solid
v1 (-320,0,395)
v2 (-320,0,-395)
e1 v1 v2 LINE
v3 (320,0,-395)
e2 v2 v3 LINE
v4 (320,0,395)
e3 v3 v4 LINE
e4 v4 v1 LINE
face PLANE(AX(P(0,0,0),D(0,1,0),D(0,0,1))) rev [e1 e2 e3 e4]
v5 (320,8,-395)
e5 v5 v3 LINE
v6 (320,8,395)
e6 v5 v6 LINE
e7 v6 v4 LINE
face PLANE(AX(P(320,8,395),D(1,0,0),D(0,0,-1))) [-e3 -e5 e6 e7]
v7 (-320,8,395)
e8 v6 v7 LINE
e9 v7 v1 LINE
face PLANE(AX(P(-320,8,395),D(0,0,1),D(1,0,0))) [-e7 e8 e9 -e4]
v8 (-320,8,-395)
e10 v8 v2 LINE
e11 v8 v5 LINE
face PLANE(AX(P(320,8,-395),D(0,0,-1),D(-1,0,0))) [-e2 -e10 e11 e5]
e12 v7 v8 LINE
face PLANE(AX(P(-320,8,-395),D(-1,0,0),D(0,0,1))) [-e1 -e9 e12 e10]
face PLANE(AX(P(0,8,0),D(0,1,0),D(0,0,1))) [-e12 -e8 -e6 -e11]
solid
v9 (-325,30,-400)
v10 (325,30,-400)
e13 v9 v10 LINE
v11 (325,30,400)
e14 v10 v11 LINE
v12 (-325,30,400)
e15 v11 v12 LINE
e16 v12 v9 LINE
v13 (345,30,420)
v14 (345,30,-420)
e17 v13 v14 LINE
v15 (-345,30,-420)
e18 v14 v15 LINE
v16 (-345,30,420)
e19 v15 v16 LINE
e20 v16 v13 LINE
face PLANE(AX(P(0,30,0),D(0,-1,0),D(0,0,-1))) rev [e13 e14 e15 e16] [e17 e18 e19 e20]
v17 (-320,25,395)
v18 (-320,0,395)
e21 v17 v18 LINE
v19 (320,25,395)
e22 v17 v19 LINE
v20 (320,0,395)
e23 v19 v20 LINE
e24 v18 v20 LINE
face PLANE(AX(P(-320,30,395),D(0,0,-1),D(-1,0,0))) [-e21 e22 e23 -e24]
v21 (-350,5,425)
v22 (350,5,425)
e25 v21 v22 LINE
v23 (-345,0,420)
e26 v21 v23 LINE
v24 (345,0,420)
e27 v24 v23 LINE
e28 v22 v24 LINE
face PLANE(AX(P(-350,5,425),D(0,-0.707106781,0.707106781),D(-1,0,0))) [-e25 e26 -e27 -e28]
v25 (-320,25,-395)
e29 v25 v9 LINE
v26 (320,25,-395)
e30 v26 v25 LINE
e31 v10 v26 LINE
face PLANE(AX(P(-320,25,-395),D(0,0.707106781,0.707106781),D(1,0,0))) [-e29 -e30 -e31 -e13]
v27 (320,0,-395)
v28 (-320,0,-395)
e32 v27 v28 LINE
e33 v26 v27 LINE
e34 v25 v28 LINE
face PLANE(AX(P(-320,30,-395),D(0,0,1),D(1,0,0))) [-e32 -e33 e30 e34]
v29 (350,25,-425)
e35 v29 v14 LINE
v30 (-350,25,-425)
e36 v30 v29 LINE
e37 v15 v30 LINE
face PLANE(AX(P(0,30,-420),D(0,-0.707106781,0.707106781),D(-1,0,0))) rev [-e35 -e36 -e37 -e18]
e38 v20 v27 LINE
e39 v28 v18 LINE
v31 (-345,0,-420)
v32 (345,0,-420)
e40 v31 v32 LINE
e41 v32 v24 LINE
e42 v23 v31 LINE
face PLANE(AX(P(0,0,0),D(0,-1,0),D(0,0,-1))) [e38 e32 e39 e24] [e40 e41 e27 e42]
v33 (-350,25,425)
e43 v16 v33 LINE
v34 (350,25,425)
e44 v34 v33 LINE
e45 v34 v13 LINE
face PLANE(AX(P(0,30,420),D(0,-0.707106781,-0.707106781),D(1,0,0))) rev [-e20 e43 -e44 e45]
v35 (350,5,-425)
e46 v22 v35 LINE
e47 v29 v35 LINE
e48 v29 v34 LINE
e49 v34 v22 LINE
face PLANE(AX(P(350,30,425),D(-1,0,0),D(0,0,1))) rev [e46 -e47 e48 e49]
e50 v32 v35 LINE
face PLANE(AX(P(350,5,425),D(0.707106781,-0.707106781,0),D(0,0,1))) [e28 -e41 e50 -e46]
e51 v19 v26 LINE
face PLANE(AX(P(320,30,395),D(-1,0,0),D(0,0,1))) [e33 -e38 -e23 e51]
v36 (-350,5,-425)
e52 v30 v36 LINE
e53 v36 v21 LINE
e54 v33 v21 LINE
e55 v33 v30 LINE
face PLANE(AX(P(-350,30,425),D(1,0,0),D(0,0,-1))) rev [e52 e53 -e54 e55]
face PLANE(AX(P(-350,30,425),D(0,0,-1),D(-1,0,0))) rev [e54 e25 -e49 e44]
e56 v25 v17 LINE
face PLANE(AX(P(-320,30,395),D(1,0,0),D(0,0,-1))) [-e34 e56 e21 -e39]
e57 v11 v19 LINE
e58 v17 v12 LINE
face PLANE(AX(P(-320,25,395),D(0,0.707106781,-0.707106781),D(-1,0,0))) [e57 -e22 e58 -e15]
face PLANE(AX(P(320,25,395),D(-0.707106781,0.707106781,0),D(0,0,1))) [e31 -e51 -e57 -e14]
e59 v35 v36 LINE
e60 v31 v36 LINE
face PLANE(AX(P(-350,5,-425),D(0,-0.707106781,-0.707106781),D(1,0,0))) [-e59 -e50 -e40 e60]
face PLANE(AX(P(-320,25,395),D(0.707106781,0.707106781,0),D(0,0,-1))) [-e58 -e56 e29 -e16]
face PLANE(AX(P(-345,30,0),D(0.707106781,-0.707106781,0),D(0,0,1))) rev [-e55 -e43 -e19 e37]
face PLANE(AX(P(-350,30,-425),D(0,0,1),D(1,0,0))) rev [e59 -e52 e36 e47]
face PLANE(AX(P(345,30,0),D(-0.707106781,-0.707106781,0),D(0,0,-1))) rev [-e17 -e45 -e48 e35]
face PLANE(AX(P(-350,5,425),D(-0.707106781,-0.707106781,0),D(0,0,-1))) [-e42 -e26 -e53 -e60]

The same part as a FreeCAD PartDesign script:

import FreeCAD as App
import Part
import Sketcher

V = App.Vector


def edges_at(feature, points):
    """Names of the edges that pass closest to the given points."""
    edges = feature.Shape.Edges
    near = lambda p: min(range(len(edges)), key=lambda i: edges[i].distToShape(Part.Vertex(*p))[0])
    return sorted({f"Edge{near(p) + 1}" for p in points})

doc = App.newDocument("Part")
body = doc.addObject("PartDesign::Body", "Body")

# Sketch on XZ plane
sketch1 = body.newObject("Sketcher::SketchObject", "Sketch")
sketch1.AttachmentSupport = (doc.getObject("XZ_Plane"), [""])
sketch1.MapMode = "FlatFace"
sketch1.addGeometry([
    Part.LineSegment(V(-350, -425, 0), V(-350, 425, 0)),  # 0
    Part.LineSegment(V(-350, 425, 0), V(350, 425, 0)),  # 1
    Part.LineSegment(V(350, 425, 0), V(350, -425, 0)),  # 2
    Part.LineSegment(V(350, -425, 0), V(-350, -425, 0)),  # 3
    Part.LineSegment(V(320, 395, 0), V(-320, 395, 0)),  # 4
    Part.LineSegment(V(-320, 395, 0), V(-320, -395, 0)),  # 5
    Part.LineSegment(V(-320, -395, 0), V(320, -395, 0)),  # 6
    Part.LineSegment(V(320, -395, 0), V(320, 395, 0)),  # 7
], False)
sketch1.addConstraint([
    Sketcher.Constraint("Coincident", 0, 2, 1, 1),
    Sketcher.Constraint("Coincident", 1, 2, 2, 1),
    Sketcher.Constraint("Coincident", 2, 2, 3, 1),
    Sketcher.Constraint("Coincident", 3, 2, 0, 1),
    Sketcher.Constraint("Coincident", 4, 2, 5, 1),
    Sketcher.Constraint("Coincident", 5, 2, 6, 1),
    Sketcher.Constraint("Coincident", 6, 2, 7, 1),
    Sketcher.Constraint("Coincident", 7, 2, 4, 1),
    Sketcher.Constraint("Vertical", 0),
    Sketcher.Constraint("Horizontal", 1),
    Sketcher.Constraint("Vertical", 2),
    Sketcher.Constraint("Horizontal", 3),
    Sketcher.Constraint("Horizontal", 4),
    Sketcher.Constraint("Vertical", 5),
    Sketcher.Constraint("Horizontal", 6),
    Sketcher.Constraint("Vertical", 7),
    Sketcher.Constraint("Symmetric", 0, 2, 2, 2, -1, 1),
    Sketcher.Constraint("Symmetric", 4, 2, 6, 2, -1, 1),
    Sketcher.Constraint("DistanceX", 1, 1, 1, 2, 700.0),
    Sketcher.Constraint("DistanceX", 4, 2, 4, 1, 640.0),
    Sketcher.Constraint("DistanceY", 0, 1, 0, 2, 850.0),
    Sketcher.Constraint("DistanceY", 5, 2, 5, 1, 790.0),
])
pad1 = body.newObject("PartDesign::Pad", "Pad")
pad1.Profile = sketch1
pad1.Length = 30
pad1.Reversed = True
doc.recompute()

chamfer = body.newObject("PartDesign::Chamfer", "Chamfer")
chamfer.Base = (pad1, edges_at(pad1, [
    (-350, 30, 0),
    (-320, 30, 0),
    (0, 30, 425),
    (0, 30, 395),
    (320, 30, 0),
    (0, 30, -395),
    (350, 30, 0),
    (0, 0, 425),
    (-350, 0, 0),
    (0, 0, -425),
    (350, 0, 0),
    (0, 30, -425),
]))
chamfer.Size = 5
body2 = doc.addObject("PartDesign::Body", "Body001")

# Sketch on XZ plane
sketch2 = body2.newObject("Sketcher::SketchObject", "Sketch001")
sketch2.AttachmentSupport = (doc.getObject("XZ_Plane001"), [""])
sketch2.MapMode = "FlatFace"
sketch2.addGeometry([
    Part.LineSegment(V(-320, 395, 0), V(-320, -395, 0)),
    Part.LineSegment(V(-320, -395, 0), V(320, -395, 0)),
    Part.LineSegment(V(320, -395, 0), V(320, 395, 0)),
    Part.LineSegment(V(320, 395, 0), V(-320, 395, 0)),
], False)
sketch2.addConstraint([
    Sketcher.Constraint("Coincident", 0, 2, 1, 1),
    Sketcher.Constraint("Coincident", 1, 2, 2, 1),
    Sketcher.Constraint("Coincident", 2, 2, 3, 1),
    Sketcher.Constraint("Coincident", 3, 2, 0, 1),
    Sketcher.Constraint("Vertical", 0),
    Sketcher.Constraint("Horizontal", 1),
    Sketcher.Constraint("Vertical", 2),
    Sketcher.Constraint("Horizontal", 3),
    Sketcher.Constraint("Symmetric", 0, 2, 2, 2, -1, 1),
    Sketcher.Constraint("DistanceX", 1, 1, 1, 2, 640.0),
    Sketcher.Constraint("DistanceY", 0, 2, 0, 1, 790.0),
])
pad2 = body2.newObject("PartDesign::Pad", "Pad001")
pad2.Profile = sketch2
pad2.Length = 8
pad2.Reversed = True

doc.recompute()
